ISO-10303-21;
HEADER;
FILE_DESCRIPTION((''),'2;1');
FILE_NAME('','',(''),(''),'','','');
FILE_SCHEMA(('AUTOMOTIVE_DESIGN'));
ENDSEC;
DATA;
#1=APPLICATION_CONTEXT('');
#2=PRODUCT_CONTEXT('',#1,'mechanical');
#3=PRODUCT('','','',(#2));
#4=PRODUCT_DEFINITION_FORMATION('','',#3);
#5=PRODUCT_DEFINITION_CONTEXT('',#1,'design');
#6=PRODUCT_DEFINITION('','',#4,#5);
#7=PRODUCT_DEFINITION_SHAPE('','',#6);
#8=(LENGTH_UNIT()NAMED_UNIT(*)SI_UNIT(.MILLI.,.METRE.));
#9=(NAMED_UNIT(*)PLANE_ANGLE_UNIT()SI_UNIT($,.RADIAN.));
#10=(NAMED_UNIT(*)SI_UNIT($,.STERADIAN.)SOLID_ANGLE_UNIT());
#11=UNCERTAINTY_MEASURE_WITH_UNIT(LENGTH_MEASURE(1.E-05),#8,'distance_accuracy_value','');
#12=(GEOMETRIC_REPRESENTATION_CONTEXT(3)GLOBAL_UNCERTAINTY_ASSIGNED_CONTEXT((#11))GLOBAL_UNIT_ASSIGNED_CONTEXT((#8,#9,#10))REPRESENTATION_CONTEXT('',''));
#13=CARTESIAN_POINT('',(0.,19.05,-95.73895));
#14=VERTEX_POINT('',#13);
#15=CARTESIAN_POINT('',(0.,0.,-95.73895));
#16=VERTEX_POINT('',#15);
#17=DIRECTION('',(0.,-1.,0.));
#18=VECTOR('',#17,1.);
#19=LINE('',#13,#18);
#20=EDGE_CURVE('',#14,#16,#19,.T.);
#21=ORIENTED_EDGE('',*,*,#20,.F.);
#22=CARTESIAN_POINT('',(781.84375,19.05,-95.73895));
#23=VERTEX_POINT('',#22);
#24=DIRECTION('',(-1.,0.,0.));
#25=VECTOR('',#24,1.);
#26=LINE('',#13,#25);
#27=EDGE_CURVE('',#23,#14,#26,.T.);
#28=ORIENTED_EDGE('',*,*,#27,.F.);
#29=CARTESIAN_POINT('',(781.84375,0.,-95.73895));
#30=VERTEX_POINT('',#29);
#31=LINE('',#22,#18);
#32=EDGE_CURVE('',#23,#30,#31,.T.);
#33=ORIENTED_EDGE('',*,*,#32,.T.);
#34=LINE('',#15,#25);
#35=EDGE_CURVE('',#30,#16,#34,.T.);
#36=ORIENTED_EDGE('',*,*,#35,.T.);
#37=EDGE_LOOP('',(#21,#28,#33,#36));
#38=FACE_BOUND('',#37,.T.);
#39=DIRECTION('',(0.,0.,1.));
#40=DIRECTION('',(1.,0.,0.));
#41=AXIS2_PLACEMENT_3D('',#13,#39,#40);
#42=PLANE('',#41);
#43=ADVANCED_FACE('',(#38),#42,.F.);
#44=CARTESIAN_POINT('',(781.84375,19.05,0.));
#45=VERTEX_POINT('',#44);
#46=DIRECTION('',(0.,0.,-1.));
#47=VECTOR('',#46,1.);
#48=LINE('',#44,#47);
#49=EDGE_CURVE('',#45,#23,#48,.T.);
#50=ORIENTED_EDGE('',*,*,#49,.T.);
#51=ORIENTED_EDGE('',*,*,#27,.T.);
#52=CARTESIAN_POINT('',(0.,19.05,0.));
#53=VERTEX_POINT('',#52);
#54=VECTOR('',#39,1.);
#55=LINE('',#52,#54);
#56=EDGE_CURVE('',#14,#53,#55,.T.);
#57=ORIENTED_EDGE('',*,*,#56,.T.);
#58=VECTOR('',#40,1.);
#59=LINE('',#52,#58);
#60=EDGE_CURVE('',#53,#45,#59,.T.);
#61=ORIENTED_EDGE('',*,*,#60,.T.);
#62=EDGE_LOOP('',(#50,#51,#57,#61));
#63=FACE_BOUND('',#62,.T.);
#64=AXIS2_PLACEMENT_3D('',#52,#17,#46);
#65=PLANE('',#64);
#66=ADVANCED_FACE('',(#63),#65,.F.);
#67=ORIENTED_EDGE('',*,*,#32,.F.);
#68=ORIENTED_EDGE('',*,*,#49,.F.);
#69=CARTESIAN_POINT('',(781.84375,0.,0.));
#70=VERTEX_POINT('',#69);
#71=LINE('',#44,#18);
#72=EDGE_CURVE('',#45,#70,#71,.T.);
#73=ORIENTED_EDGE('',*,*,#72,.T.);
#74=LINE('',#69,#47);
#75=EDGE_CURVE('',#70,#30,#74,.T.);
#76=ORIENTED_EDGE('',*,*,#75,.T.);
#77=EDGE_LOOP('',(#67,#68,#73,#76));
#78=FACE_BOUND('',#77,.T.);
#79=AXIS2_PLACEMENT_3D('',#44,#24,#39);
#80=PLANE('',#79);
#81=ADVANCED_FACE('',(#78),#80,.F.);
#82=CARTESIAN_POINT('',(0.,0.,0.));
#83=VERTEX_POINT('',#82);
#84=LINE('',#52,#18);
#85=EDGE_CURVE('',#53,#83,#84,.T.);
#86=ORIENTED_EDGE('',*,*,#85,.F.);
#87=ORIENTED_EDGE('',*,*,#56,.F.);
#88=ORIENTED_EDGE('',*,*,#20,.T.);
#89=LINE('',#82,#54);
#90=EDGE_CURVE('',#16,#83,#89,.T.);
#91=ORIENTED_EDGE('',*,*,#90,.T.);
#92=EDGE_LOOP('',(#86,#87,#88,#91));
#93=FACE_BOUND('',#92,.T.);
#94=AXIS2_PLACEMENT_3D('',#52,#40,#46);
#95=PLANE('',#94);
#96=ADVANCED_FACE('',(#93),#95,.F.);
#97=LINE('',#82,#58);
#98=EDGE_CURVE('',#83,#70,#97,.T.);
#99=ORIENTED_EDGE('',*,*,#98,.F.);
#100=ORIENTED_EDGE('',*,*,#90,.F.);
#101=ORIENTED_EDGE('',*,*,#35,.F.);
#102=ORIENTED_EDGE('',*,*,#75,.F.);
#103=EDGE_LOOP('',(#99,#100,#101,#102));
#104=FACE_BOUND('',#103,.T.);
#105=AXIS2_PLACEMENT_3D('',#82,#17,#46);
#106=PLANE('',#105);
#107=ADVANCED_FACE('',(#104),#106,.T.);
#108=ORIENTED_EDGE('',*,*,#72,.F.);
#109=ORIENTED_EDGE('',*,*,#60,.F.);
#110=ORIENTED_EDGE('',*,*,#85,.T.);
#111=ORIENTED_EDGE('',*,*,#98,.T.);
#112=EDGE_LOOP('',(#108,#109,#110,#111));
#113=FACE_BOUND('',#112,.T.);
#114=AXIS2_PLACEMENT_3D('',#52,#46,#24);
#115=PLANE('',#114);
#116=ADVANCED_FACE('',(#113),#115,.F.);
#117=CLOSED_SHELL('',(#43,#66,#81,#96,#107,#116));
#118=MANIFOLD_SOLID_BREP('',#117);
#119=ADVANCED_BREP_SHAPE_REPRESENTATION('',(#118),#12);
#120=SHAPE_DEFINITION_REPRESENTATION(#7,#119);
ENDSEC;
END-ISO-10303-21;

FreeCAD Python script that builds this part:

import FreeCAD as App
import Part
import Sketcher
Q = App.Units.Quantity

doc = App.newDocument("Part")
body = doc.addObject("PartDesign::Body", "Body")

sketch1 = body.newObject("Sketcher::SketchObject", "Sketch")
sketch1.AttachmentSupport = (doc.getObject("XZ_Plane"), [""])
sketch1.MapMode = "FlatFace"
sketch1.addGeometry(Part.LineSegment(App.Vector(0, -96, 0), App.Vector(0, 0, 0)), False)
sketch1.addGeometry(Part.LineSegment(App.Vector(0, 0, 0), App.Vector(782, 0, 0)), False)
sketch1.addGeometry(Part.LineSegment(App.Vector(782, 0, 0), App.Vector(782, -96, 0)), False)
sketch1.addGeometry(Part.LineSegment(App.Vector(782, -96, 0), App.Vector(0, -96, 0)), False)
sketch1.addConstraint(Sketcher.Constraint("Coincident", 0, 2, 1, 1))
sketch1.addConstraint(Sketcher.Constraint("Coincident", 1, 2, 2, 1))
sketch1.addConstraint(Sketcher.Constraint("Coincident", 2, 2, 3, 1))
sketch1.addConstraint(Sketcher.Constraint("Coincident", 3, 2, 0, 1))
sketch1.addConstraint(Sketcher.Constraint("Vertical", 0))
sketch1.addConstraint(Sketcher.Constraint("Horizontal", 1))
sketch1.addConstraint(Sketcher.Constraint("Vertical", 2))
sketch1.addConstraint(Sketcher.Constraint("Horizontal", 3))
sketch1.addConstraint(Sketcher.Constraint("Coincident", 0, 2, -1, 1))
sketch1.addConstraint(Sketcher.Constraint("DistanceX", 1, 1, 1, 2, Q("30.78125 in")))
sketch1.addConstraint(Sketcher.Constraint("DistanceY", 0, 1, 0, 2, 95.73895))
pad1 = body.newObject("PartDesign::Pad", "Pad")
pad1.Profile = sketch1
pad1.Length = Q("0.75 in")
pad1.Reversed = True

doc.recompute()
